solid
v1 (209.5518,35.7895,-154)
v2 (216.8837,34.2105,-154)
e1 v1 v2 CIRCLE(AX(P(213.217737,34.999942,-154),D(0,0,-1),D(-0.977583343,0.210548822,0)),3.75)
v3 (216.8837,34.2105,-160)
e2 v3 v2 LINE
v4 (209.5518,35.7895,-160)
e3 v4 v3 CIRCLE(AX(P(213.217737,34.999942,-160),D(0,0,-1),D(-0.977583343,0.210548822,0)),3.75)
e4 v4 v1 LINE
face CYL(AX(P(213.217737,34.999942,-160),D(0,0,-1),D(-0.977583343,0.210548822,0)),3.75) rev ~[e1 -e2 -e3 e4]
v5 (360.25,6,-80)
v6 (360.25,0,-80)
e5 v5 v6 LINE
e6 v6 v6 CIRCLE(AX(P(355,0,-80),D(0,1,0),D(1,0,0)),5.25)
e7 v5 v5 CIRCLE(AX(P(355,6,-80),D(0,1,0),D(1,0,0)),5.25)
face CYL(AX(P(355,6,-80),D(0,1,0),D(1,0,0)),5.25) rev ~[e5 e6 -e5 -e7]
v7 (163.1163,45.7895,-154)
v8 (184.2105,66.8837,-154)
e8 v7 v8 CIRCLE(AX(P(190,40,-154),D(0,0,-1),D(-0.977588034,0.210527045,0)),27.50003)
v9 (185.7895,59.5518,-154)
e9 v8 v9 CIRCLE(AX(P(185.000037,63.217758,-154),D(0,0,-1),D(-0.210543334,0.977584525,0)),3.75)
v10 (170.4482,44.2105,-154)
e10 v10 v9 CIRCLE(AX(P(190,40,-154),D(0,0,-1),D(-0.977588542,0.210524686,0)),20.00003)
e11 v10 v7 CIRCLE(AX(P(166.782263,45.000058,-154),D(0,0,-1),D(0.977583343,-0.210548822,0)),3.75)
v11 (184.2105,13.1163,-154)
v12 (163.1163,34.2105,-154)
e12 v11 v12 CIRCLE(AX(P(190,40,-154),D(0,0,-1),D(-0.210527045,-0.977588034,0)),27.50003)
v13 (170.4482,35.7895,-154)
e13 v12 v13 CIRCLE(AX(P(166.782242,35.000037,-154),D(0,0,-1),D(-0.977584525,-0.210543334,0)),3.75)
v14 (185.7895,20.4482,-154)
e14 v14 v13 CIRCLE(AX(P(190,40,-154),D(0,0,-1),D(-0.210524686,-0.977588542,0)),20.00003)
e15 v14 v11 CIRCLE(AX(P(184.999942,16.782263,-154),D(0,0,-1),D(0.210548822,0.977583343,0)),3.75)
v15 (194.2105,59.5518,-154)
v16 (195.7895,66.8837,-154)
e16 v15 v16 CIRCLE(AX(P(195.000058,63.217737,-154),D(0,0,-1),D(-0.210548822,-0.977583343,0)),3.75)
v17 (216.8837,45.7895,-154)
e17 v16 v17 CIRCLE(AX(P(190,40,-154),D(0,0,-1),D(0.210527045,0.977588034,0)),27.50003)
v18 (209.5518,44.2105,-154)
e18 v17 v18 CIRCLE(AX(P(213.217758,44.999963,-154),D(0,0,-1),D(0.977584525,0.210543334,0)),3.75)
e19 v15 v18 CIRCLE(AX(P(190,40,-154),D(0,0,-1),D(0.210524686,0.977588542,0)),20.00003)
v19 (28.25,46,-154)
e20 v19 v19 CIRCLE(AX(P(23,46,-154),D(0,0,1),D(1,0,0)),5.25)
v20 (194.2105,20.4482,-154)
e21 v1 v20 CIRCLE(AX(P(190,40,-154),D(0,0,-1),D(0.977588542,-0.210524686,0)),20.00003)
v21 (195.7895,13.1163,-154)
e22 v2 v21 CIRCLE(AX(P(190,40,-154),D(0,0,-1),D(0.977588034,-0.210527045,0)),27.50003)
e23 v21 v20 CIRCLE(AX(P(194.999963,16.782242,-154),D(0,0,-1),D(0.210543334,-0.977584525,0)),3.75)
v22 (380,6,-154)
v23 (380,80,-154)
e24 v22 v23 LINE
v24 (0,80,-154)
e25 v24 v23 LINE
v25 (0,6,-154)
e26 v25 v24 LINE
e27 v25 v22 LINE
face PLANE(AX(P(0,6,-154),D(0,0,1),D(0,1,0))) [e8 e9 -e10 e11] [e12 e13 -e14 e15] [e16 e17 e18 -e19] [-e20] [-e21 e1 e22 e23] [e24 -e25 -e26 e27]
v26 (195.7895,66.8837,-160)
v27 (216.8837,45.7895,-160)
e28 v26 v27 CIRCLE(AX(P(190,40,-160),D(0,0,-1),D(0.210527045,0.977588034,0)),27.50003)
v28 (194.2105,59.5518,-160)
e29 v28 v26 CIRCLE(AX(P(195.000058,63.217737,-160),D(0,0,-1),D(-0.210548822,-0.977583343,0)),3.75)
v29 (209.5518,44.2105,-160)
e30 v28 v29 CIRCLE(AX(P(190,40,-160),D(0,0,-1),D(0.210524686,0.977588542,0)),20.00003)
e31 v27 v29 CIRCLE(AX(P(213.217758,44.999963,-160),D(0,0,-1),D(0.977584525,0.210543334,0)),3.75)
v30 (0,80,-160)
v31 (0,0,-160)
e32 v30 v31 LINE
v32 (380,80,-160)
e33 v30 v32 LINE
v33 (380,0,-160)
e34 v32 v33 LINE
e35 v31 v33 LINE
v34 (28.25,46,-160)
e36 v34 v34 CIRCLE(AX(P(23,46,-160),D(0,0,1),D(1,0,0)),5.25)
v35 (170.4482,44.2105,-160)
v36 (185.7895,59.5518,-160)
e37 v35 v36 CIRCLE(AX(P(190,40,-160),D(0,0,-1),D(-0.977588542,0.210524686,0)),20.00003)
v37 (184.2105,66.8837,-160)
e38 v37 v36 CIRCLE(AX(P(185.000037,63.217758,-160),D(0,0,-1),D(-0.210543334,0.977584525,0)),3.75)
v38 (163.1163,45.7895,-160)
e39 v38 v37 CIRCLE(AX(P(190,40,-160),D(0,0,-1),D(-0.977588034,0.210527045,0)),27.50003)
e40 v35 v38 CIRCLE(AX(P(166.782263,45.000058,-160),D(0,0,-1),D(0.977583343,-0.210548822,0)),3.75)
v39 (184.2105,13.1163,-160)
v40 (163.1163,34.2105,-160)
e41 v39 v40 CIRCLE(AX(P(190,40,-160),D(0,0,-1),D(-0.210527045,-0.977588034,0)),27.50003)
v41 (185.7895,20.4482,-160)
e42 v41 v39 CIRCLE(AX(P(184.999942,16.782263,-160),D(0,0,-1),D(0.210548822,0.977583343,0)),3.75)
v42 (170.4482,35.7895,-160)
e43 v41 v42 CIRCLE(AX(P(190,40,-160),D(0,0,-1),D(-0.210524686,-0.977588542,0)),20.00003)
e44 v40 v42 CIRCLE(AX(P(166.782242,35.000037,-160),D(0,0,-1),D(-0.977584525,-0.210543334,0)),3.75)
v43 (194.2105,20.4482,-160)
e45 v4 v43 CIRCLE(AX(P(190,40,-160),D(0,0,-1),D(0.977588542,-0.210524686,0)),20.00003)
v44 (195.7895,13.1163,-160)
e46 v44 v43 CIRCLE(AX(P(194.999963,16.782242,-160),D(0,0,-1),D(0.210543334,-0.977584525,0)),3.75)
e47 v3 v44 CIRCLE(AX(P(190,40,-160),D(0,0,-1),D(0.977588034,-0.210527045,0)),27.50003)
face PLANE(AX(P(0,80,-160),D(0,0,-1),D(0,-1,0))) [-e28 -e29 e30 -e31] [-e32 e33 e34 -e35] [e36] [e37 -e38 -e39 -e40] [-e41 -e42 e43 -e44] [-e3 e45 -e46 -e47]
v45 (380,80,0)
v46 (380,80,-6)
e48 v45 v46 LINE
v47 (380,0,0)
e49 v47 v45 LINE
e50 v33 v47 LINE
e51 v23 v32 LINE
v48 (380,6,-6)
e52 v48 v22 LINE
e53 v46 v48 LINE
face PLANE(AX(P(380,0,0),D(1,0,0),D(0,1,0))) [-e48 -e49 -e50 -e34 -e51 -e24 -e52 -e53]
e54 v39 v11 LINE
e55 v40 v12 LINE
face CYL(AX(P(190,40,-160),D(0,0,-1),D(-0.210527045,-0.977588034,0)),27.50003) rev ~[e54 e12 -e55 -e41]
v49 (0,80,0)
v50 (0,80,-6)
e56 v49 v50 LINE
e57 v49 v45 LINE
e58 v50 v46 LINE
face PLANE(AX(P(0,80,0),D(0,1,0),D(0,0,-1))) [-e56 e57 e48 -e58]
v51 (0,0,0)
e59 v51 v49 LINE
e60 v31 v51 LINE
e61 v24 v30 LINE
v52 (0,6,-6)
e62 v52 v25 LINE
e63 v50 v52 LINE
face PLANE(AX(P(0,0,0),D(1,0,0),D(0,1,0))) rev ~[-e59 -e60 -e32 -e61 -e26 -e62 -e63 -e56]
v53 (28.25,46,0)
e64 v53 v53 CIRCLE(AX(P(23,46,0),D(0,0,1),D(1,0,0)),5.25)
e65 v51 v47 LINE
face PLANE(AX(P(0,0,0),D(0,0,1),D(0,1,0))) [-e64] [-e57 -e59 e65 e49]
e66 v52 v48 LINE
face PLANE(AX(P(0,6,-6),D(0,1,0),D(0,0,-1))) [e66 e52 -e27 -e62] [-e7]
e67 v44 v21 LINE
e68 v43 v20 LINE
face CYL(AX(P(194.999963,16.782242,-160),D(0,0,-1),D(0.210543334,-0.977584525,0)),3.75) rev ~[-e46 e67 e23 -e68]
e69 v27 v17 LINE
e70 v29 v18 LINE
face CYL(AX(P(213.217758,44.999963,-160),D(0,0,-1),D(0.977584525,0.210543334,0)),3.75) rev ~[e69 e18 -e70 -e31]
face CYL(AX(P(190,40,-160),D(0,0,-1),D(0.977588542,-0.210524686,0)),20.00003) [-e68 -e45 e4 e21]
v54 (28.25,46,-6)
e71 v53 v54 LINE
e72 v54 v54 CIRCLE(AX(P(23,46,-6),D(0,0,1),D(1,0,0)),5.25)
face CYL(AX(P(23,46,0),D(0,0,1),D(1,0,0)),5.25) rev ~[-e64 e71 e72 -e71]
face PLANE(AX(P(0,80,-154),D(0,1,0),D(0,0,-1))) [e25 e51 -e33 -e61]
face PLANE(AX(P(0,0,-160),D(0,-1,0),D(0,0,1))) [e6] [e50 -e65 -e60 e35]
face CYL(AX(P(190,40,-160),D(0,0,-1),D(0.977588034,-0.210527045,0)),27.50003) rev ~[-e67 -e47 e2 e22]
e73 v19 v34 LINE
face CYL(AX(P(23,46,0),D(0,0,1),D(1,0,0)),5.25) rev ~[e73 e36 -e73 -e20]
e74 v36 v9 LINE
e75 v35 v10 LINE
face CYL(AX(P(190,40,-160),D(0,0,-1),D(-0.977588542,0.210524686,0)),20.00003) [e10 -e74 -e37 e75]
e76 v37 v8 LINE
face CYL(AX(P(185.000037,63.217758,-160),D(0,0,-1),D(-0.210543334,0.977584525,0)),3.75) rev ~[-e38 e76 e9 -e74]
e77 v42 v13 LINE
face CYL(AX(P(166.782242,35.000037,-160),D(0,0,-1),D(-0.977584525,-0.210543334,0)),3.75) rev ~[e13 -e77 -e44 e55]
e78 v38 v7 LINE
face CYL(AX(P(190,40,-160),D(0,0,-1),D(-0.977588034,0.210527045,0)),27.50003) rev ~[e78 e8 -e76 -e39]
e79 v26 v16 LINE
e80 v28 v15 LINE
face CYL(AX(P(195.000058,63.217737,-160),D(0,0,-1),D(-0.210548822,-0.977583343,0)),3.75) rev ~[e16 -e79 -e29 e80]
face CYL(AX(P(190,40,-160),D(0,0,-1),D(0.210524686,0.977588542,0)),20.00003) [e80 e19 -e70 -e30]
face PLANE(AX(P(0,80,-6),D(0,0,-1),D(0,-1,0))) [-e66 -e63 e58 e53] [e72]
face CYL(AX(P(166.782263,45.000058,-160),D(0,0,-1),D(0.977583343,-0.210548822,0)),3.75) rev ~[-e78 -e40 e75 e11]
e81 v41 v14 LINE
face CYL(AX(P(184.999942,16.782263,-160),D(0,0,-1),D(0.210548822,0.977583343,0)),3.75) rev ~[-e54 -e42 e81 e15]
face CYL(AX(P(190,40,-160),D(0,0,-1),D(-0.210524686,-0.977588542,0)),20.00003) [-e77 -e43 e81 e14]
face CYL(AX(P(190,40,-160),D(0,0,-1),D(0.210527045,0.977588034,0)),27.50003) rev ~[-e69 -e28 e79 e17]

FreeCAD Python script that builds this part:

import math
import FreeCAD as App
import Part
import Sketcher
from FreeCAD import Vector
Q = App.Units.Quantity

doc = App.newDocument("Part")
body = doc.addObject("PartDesign::Body", "Body")

# Sketch on YZ plane
sketch1 = body.newObject("Sketcher::SketchObject", "Sketch")
sketch1.AttachmentSupport = (doc.getObject("YZ_Plane"), [""])
sketch1.MapMode = "FlatFace"
sketch1.addGeometry(Part.LineSegment(Vector(80, 0, 0), Vector(0, 0, 0)), False)
sketch1.addGeometry(Part.LineSegment(Vector(0, 0, 0), Vector(0, -160, 0)), False)
sketch1.addGeometry(Part.LineSegment(Vector(0, -160, 0), Vector(80, -160, 0)), False)
sketch1.addGeometry(Part.LineSegment(Vector(80, -160, 0), Vector(80, -154, 0)), False)
sketch1.addGeometry(Part.LineSegment(Vector(80, -154, 0), Vector(6, -154, 0)), False)
sketch1.addGeometry(Part.LineSegment(Vector(6, -154, 0), Vector(6, -6, 0)), False)
sketch1.addGeometry(Part.LineSegment(Vector(6, -6, 0), Vector(80, -6, 0)), False)
sketch1.addGeometry(Part.LineSegment(Vector(80, -6, 0), Vector(80, 0, 0)), False)
sketch1.addConstraint(Sketcher.Constraint("Coincident", 0, 2, 1, 1))
sketch1.addConstraint(Sketcher.Constraint("Coincident", 1, 2, 2, 1))
sketch1.addConstraint(Sketcher.Constraint("Coincident", 2, 2, 3, 1))
sketch1.addConstraint(Sketcher.Constraint("Coincident", 3, 2, 4, 1))
sketch1.addConstraint(Sketcher.Constraint("Coincident", 4, 2, 5, 1))
sketch1.addConstraint(Sketcher.Constraint("Coincident", 5, 2, 6, 1))
sketch1.addConstraint(Sketcher.Constraint("Coincident", 6, 2, 7, 1))
sketch1.addConstraint(Sketcher.Constraint("Coincident", 7, 2, 0, 1))
sketch1.addConstraint(Sketcher.Constraint("Horizontal", 0))
sketch1.addConstraint(Sketcher.Constraint("Vertical", 1))
sketch1.addConstraint(Sketcher.Constraint("Horizontal", 2))
sketch1.addConstraint(Sketcher.Constraint("Vertical", 3))
sketch1.addConstraint(Sketcher.Constraint("Horizontal", 4))
sketch1.addConstraint(Sketcher.Constraint("Vertical", 5))
sketch1.addConstraint(Sketcher.Constraint("Horizontal", 6))
sketch1.addConstraint(Sketcher.Constraint("Vertical", 7))
sketch1.addConstraint(Sketcher.Constraint("Coincident", 0, 2, -1, 1))
sketch1.addConstraint(Sketcher.Constraint("Vertical", 3, 2, 6, 2))
sketch1.addConstraint(Sketcher.Constraint("Equal", 3, 7))
sketch1.addConstraint(Sketcher.Constraint("DistanceX", 0, 2, 0, 1, Q("80 mm")))
sketch1.addConstraint(Sketcher.Constraint("DistanceX", 4, 2, 4, 1, Q("74 mm")))
sketch1.addConstraint(Sketcher.Constraint("DistanceY", 1, 2, 1, 1, Q("160 mm")))
sketch1.addConstraint(Sketcher.Constraint("DistanceY", 3, 1, 3, 2, Q("6 mm")))
pad1 = body.newObject("PartDesign::Pad", "Pad")
pad1.Profile = sketch1
pad1.Length = 380

# Sketch on XZ plane
sketch2 = body.newObject("Sketcher::SketchObject", "Sketch001")
sketch2.AttachmentSupport = (doc.getObject("XZ_Plane"), [""])
sketch2.MapMode = "FlatFace"
sketch2.AttachmentOffset = App.Placement(Vector(0, 0, -6), App.Rotation())
sketch2.addGeometry(Part.Circle(Vector(355, -80, 0), Vector(0, 0, 1), 5), False)
sketch2.addConstraint(Sketcher.Constraint("Diameter", 0, Q("10.5 mm")))
sketch2.addConstraint(Sketcher.Constraint("DistanceY", 0, 3, -1, 1, Q("80 mm")))
sketch2.addConstraint(Sketcher.Constraint("DistanceX", -1, 1, 0, 3, Q("355 mm")))
pocket1 = body.newObject("PartDesign::Pocket", "Pocket")
pocket1.Profile = sketch2
pocket1.Type = "ThroughAll"
pocket1.Reversed = True

# Sketch on XY plane
sketch3 = body.newObject("Sketcher::SketchObject", "Sketch002")
sketch3.AttachmentSupport = (doc.getObject("XY_Plane"), [""])
sketch3.MapMode = "FlatFace"
sketch3.addGeometry(Part.Circle(Vector(23, 46, 0), Vector(0, 0, 1), 5), False)
sketch3.addConstraint(Sketcher.Constraint("Diameter", 0, Q("10.5 mm")))
sketch3.addConstraint(Sketcher.Constraint("DistanceY", -1, 1, 0, 3, Q("46 mm")))
sketch3.addConstraint(Sketcher.Constraint("DistanceX", -1, 1, 0, 3, Q("23 mm")))
pocket2 = body.newObject("PartDesign::Pocket", "Pocket001")
pocket2.Profile = sketch3
pocket2.Type = "ThroughAll"

# Sketch on XY plane
sketch4 = body.newObject("Sketcher::SketchObject", "Sketch003")
sketch4.AttachmentSupport = (doc.getObject("XY_Plane"), [""])
sketch4.MapMode = "FlatFace"
sketch4.AttachmentOffset = App.Placement(Vector(0, 0, -160), App.Rotation())
sketch4.addGeometry(Part.ArcOfCircle(Part.Circle(Vector(190, 40, 0), Vector(0, 0, 1), 27.5), math.radians(12), math.radians(78)), False)
sketch4.addGeometry(Part.ArcOfCircle(Part.Circle(Vector(213.2, 45, 0), Vector(0, 0, 1), 3.8), math.radians(-168), math.radians(12)), False)
sketch4.addGeometry(Part.ArcOfCircle(Part.Circle(Vector(190, 40, 0), Vector(0, 0, 1), 20), math.radians(12), math.radians(78)), False)
sketch4.addGeometry(Part.ArcOfCircle(Part.Circle(Vector(195, 63.2, 0), Vector(0, 0, 1), 3.7), math.radians(78), math.radians(258)), False)
sketch4.addGeometry(Part.ArcOfCircle(Part.Circle(Vector(190, 40, 0), Vector(0, 0, 1), 20), math.radians(-78), math.radians(-12)), False)
sketch4.addGeometry(Part.ArcOfCircle(Part.Circle(Vector(213.2, 35, 0), Vector(0, 0, 1), 3.7), math.radians(-12), math.radians(168)), False)
sketch4.addGeometry(Part.ArcOfCircle(Part.Circle(Vector(190, 40, 0), Vector(0, 0, 1), 27.5), math.radians(-78), math.radians(-12)), False)
sketch4.addGeometry(Part.ArcOfCircle(Part.Circle(Vector(195, 16.8, 0), Vector(0, 0, 1), 3.8), math.radians(102), math.radians(282)), False)
sketch4.addGeometry(Part.ArcOfCircle(Part.Circle(Vector(190, 40, 0), Vector(0, 0, 1), 20), math.radians(-168), math.radians(-102)), False)
sketch4.addGeometry(Part.ArcOfCircle(Part.Circle(Vector(185, 16.8, 0), Vector(0, 0, 1), 3.7), math.radians(-102), math.radians(78)), False)
sketch4.addGeometry(Part.ArcOfCircle(Part.Circle(Vector(190, 40, 0), Vector(0, 0, 1), 27.5), math.radians(-168), math.radians(-102)), False)
sketch4.addGeometry(Part.ArcOfCircle(Part.Circle(Vector(166.8, 35, 0), Vector(0, 0, 1), 3.8), math.radians(12), math.radians(192)), False)
sketch4.addGeometry(Part.ArcOfCircle(Part.Circle(Vector(190, 40, 0), Vector(0, 0, 1), 20), math.radians(102), math.radians(168)), False)
sketch4.addGeometry(Part.ArcOfCircle(Part.Circle(Vector(166.8, 45, 0), Vector(0, 0, 1), 3.7), math.radians(168), math.radians(348)), False)
sketch4.addGeometry(Part.ArcOfCircle(Part.Circle(Vector(190, 40, 0), Vector(0, 0, 1), 27.5), math.radians(102), math.radians(168)), False)
sketch4.addGeometry(Part.ArcOfCircle(Part.Circle(Vector(185, 63.2, 0), Vector(0, 0, 1), 3.8), math.radians(-78), math.radians(102)), False)
sketch4.addConstraint(Sketcher.Constraint("Tangent", 0, 1, 1, 2))
sketch4.addConstraint(Sketcher.Constraint("Tangent", 1, 1, 2, 1))
sketch4.addConstraint(Sketcher.Constraint("Tangent", 2, 2, 3, 2))
sketch4.addConstraint(Sketcher.Constraint("Tangent", 3, 1, 0, 2))
sketch4.addConstraint(Sketcher.Constraint("Tangent", 4, 2, 5, 2))
sketch4.addConstraint(Sketcher.Constraint("Tangent", 5, 1, 6, 2))
sketch4.addConstraint(Sketcher.Constraint("Tangent", 6, 1, 7, 2))
sketch4.addConstraint(Sketcher.Constraint("Tangent", 7, 1, 4, 1))
sketch4.addConstraint(Sketcher.Constraint("Tangent", 8, 2, 9, 2))
sketch4.addConstraint(Sketcher.Constraint("Tangent", 9, 1, 10, 2))
sketch4.addConstraint(Sketcher.Constraint("Tangent", 10, 1, 11, 2))
sketch4.addConstraint(Sketcher.Constraint("Tangent", 11, 1, 8, 1))
sketch4.addConstraint(Sketcher.Constraint("Tangent", 12, 2, 13, 2))
sketch4.addConstraint(Sketcher.Constraint("Tangent", 13, 1, 14, 2))
sketch4.addConstraint(Sketcher.Constraint("Tangent", 14, 1, 15, 2))
sketch4.addConstraint(Sketcher.Constraint("Tangent", 15, 1, 12, 1))
sketch4.addConstraint(Sketcher.Constraint("Coincident", 2, 3, 0, 3))
sketch4.addConstraint(Sketcher.Constraint("Coincident", 4, 3, 0, 3))
sketch4.addConstraint(Sketcher.Constraint("Coincident", 6, 3, 0, 3))
sketch4.addConstraint(Sketcher.Constraint("Coincident", 8, 3, 0, 3))
sketch4.addConstraint(Sketcher.Constraint("Coincident", 10, 3, 0, 3))
sketch4.addConstraint(Sketcher.Constraint("Coincident", 12, 3, 0, 3))
sketch4.addConstraint(Sketcher.Constraint("Coincident", 14, 3, 0, 3))
sketch4.addConstraint(Sketcher.Constraint("Equal", 2, 4))
sketch4.addConstraint(Sketcher.Constraint("Equal", 3, 5))
sketch4.addConstraint(Sketcher.Constraint("Equal", 4, 8))
sketch4.addConstraint(Sketcher.Constraint("Equal", 7, 9))
sketch4.addConstraint(Sketcher.Constraint("Equal", 8, 12))
sketch4.addConstraint(Sketcher.Constraint("Equal", 11, 13))
sketch4.addConstraint(Sketcher.Constraint("Horizontal", 7, 3, 9, 3))
sketch4.addConstraint(Sketcher.Constraint("Horizontal", 5, 3, 11, 3))
sketch4.addConstraint(Sketcher.Constraint("Horizontal", 1, 3, 13, 3))
sketch4.addConstraint(Sketcher.Constraint("Horizontal", 3, 3, 15, 3))
sketch4.addConstraint(Sketcher.Constraint("Vertical", 1, 3, 5, 3))
sketch4.addConstraint(Sketcher.Constraint("Vertical", 3, 3, 7, 3))
sketch4.addConstraint(Sketcher.Constraint("Radius", 2, Q("20 mm")))
sketch4.addConstraint(Sketcher.Constraint("DistanceX", -1, 1, 0, 3, Q("190 mm")))
sketch4.addConstraint(Sketcher.Constraint("DistanceY", -1, 1, 0, 3, Q("40 mm")))
sketch4.addConstraint(Sketcher.Constraint("DistanceY", 0, 3, 1, 3, Q("5 mm")))
sketch4.addConstraint(Sketcher.Constraint("DistanceX", 0, 3, 3, 3, Q("5 mm")))
sketch4.addConstraint(Sketcher.Constraint("Radius", 0, Q("27.5 mm")))
pocket3 = body.newObject("PartDesign::Pocket", "Pocket002")
pocket3.Profile = sketch4
pocket3.Length = 6
pocket3.Reversed = True

doc.recompute()
